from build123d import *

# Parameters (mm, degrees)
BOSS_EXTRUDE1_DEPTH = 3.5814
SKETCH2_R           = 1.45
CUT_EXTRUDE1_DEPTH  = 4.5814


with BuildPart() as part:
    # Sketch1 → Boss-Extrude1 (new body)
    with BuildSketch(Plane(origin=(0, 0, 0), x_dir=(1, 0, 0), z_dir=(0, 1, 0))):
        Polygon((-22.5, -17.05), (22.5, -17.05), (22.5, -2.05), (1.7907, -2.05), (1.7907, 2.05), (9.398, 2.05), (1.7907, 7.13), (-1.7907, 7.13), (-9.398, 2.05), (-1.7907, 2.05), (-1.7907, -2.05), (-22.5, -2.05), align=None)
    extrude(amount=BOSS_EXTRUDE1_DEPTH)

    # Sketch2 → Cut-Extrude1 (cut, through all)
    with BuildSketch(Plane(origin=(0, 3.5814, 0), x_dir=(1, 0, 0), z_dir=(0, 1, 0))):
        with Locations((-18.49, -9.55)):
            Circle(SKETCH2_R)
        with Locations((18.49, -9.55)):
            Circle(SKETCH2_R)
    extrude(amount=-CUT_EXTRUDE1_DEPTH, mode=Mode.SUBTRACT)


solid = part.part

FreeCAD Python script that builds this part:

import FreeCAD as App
import Part
import Sketcher
from FreeCAD import Vector
Q = App.Units.Quantity


def add_polygon(sketch, points):
    """Adds a closed chain of lines whose ends are joined by coincident constraints."""
    first, n = sketch.GeometryCount, len(points)
    for a, b in zip(points, points[1:] + points[:1]):
        sketch.addGeometry(Part.LineSegment(App.Vector(*a, 0), App.Vector(*b, 0)), False)
    for i in range(n):
        sketch.addConstraint(Sketcher.Constraint("Coincident", first + i, 2, first + (i + 1) % n, 1))

doc = App.newDocument("Part")
body = doc.addObject("PartDesign::Body", "Body")

# Sketch on XZ plane
sketch1 = body.newObject("Sketcher::SketchObject", "Sketch")
sketch1.AttachmentSupport = (doc.getObject("XZ_Plane"), [""])
sketch1.MapMode = "FlatFace"
add_polygon(sketch1, [(-22.5, 17.1), (22.5, 17.1), (22.5, 2), (1.8, 2), (1.8, -2), (9.4, -2), (1.8, -7.1), (-1.8, -7.1), (-9.4, -2), (-1.8, -2), (-1.8, 2), (-22.5, 2)])  # lines 0-11
sketch1.addConstraint([
    Sketcher.Constraint("Horizontal", 0),
    Sketcher.Constraint("Vertical", 1),
    Sketcher.Constraint("Horizontal", 2),
    Sketcher.Constraint("Vertical", 3),
    Sketcher.Constraint("Horizontal", 4),
    Sketcher.Constraint("Horizontal", 6),
    Sketcher.Constraint("Horizontal", 8),
    Sketcher.Constraint("Vertical", 9),
    Sketcher.Constraint("Horizontal", 10),
    Sketcher.Constraint("Vertical", 11),
    Sketcher.Constraint("Symmetric", 2, 2, 8, 2, -1, 1),
    Sketcher.Constraint("Symmetric", 4, 2, 7, 2, -2),
    Sketcher.Constraint("Symmetric", 1, 2, 10, 2, -2),
    Sketcher.Constraint("Vertical", 3, 2, 5, 2),
    Sketcher.Constraint("Vertical", 6, 2, 8, 2),
    Sketcher.Constraint("DistanceX", 0, 1, 0, 2, Q("45 mm")),
    Sketcher.Constraint("DistanceY", 1, 2, 1, 1, Q("15 mm")),
    Sketcher.Constraint("DistanceY", 3, 2, 3, 1, Q("4.1 mm")),
    Sketcher.Constraint("DistanceY", 5, 2, -1, 1, Q("7.13 mm")),
    Sketcher.Constraint("DistanceX", 2, 2, 2, 1, Q("20.7093 mm")),
    Sketcher.Constraint("DistanceX", 4, 1, 4, 2, Q("7.6073 mm")),
])
pad1 = body.newObject("PartDesign::Pad", "Pad")
pad1.Profile = sketch1
pad1.Length = 3.5814
pad1.Reversed = True

# Sketch on XZ plane
sketch2 = body.newObject("Sketcher::SketchObject", "Sketch001")
sketch2.AttachmentSupport = (doc.getObject("XZ_Plane"), [""])
sketch2.MapMode = "FlatFace"
sketch2.AttachmentOffset = App.Placement(Vector(0, 0, -3.5814), App.Rotation())
sketch2.addGeometry([
    Part.Circle(Vector(-18.5, 9.6, 0), Vector(0, 0, 1), 1.4),
    Part.Circle(Vector(18.5, 9.6, 0), Vector(0, 0, 1), 1.4),
], False)
sketch2.addConstraint([
    Sketcher.Constraint("Equal", 0, 1),
    Sketcher.Constraint("Symmetric", 0, 3, 1, 3, -2),
    Sketcher.Constraint("Diameter", 0, Q("2.9 mm")),
    Sketcher.Constraint("DistanceX", 0, 3, -1, 1, Q("18.49 mm")),
    Sketcher.Constraint("DistanceY", -1, 1, 0, 3, Q("9.55 mm")),
])
pocket1 = body.newObject("PartDesign::Pocket", "Pocket")
pocket1.Profile = sketch2
pocket1.Type = "ThroughAll"
pocket1.Reversed = True

doc.recompute()
